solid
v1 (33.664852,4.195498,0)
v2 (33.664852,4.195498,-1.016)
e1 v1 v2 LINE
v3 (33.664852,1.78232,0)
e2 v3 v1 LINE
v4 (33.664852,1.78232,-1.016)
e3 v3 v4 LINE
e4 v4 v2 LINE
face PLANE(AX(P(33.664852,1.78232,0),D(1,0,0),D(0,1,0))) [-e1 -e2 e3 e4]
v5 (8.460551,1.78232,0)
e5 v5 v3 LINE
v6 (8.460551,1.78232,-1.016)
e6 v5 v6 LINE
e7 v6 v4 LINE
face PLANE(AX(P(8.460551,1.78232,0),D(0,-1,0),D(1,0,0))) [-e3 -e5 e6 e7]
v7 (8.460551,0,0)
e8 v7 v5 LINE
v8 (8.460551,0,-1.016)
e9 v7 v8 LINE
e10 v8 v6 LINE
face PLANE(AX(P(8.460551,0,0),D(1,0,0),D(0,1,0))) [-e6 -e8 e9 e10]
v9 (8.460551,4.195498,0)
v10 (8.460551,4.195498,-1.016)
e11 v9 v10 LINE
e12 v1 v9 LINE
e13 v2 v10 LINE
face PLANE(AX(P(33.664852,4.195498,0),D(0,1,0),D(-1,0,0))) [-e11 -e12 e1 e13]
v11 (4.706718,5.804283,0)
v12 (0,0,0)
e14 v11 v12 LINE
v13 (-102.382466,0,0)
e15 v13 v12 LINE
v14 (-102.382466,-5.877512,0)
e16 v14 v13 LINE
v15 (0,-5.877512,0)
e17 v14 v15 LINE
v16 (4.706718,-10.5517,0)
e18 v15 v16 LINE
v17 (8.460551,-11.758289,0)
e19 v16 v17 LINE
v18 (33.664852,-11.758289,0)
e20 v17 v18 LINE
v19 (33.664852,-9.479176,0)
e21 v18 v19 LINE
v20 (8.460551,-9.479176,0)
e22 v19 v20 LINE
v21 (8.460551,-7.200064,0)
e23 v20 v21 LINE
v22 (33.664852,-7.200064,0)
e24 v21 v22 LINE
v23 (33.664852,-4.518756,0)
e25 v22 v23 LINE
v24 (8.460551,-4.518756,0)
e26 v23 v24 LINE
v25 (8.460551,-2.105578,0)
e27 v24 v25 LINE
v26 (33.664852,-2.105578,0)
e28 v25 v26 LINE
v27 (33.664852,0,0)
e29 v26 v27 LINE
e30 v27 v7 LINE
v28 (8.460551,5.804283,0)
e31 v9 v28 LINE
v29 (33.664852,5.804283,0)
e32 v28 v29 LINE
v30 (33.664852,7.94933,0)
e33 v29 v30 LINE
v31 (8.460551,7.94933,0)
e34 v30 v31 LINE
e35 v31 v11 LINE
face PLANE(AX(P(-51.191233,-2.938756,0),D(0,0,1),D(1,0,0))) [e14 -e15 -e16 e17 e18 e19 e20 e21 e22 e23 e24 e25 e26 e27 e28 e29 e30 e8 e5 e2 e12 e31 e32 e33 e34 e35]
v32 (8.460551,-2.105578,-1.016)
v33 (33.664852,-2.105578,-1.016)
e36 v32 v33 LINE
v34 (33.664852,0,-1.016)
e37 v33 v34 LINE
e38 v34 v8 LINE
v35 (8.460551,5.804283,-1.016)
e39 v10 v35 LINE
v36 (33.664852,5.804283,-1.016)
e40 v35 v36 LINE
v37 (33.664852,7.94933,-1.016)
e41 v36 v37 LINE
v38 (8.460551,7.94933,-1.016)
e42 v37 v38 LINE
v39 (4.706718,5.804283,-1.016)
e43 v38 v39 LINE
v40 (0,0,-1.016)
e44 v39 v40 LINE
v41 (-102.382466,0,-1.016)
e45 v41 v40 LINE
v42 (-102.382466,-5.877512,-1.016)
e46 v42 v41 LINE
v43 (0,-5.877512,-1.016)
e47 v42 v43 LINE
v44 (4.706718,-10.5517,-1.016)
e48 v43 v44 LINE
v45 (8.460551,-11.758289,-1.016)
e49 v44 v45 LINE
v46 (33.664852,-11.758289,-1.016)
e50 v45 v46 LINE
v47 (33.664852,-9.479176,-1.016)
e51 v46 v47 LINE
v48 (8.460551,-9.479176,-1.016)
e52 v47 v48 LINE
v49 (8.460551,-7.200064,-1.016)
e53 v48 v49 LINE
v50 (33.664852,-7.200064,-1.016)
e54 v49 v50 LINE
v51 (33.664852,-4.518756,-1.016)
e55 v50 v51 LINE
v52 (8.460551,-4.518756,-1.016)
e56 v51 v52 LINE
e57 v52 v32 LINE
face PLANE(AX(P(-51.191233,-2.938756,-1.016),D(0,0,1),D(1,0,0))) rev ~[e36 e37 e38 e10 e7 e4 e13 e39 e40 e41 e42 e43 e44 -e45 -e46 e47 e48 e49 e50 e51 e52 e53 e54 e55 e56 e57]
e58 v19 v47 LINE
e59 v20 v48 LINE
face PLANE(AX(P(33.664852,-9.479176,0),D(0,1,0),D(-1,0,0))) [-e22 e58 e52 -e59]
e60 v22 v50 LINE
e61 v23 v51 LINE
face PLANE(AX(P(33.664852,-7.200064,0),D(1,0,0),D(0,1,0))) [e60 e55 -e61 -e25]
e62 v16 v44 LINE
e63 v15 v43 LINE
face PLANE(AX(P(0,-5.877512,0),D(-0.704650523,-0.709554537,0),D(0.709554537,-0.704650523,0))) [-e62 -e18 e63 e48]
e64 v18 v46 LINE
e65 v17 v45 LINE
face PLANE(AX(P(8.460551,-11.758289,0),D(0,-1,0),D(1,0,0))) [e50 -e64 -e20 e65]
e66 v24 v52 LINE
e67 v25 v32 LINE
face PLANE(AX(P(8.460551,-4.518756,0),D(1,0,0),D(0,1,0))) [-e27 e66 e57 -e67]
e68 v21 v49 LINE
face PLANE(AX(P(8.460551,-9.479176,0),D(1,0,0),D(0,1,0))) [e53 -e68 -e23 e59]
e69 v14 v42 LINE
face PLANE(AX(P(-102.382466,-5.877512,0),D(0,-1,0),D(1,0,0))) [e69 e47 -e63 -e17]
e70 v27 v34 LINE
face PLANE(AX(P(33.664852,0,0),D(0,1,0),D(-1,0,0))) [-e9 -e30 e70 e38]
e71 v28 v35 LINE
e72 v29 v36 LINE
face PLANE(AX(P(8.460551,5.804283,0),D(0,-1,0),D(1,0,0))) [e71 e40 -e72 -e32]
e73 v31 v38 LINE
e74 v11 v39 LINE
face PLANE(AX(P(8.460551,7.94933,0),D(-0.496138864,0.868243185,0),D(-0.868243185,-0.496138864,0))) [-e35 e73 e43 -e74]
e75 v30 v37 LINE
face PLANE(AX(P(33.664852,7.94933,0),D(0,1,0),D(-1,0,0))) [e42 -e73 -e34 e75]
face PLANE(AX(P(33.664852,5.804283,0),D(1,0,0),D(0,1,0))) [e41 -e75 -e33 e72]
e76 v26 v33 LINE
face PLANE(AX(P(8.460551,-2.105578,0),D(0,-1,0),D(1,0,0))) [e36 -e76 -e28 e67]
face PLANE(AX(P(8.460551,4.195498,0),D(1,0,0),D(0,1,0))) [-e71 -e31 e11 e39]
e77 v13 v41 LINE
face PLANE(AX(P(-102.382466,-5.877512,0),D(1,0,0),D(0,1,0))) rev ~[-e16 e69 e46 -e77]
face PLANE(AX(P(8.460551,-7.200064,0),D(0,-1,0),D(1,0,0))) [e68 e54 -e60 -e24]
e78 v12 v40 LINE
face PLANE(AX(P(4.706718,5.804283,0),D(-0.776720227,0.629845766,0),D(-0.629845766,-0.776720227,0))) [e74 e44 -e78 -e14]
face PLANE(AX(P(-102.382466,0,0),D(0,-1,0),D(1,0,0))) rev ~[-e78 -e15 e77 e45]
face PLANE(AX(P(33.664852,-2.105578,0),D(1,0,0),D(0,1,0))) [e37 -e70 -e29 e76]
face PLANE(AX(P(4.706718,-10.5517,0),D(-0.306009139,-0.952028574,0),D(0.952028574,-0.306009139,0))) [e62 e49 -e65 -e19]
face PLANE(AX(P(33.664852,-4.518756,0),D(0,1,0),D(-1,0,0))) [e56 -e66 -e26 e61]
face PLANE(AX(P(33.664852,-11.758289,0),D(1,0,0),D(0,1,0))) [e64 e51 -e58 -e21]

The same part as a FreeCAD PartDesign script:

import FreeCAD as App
import Part
import Sketcher
from FreeCAD import Vector
Q = App.Units.Quantity

doc = App.newDocument("Part")
body = doc.addObject("PartDesign::Body", "Body")

sketch1 = body.newObject("Sketcher::SketchObject", "Sketch")
sketch1.AttachmentSupport = (doc.getObject("XY_Plane"), [""])
sketch1.MapMode = "FlatFace"
sketch1.addGeometry([
    Part.LineSegment(Vector(-102.4, 0, 0), Vector(-102.4, -5.9, 0)),
    Part.LineSegment(Vector(-102.4, -5.9, 0), Vector(0, -5.9, 0)),
    Part.LineSegment(Vector(0, -5.9, 0), Vector(4.7, -10.6, 0)),
    Part.LineSegment(Vector(4.7, -10.6, 0), Vector(8.5, -11.8, 0)),
    Part.LineSegment(Vector(8.5, -11.8, 0), Vector(33.7, -11.8, 0)),
    Part.LineSegment(Vector(33.7, -11.8, 0), Vector(33.7, -9.5, 0)),
    Part.LineSegment(Vector(33.7, -9.5, 0), Vector(8.5, -9.5, 0)),
    Part.LineSegment(Vector(8.5, -9.5, 0), Vector(8.5, -7.2, 0)),
    Part.LineSegment(Vector(8.5, -7.2, 0), Vector(33.7, -7.2, 0)),
    Part.LineSegment(Vector(33.7, -7.2, 0), Vector(33.7, -4.5, 0)),
    Part.LineSegment(Vector(33.7, -4.5, 0), Vector(8.5, -4.5, 0)),
    Part.LineSegment(Vector(8.5, -4.5, 0), Vector(8.5, -2.1, 0)),
    Part.LineSegment(Vector(8.5, -2.1, 0), Vector(33.7, -2.1, 0)),
    Part.LineSegment(Vector(33.7, -2.1, 0), Vector(33.7, 0, 0)),
    Part.LineSegment(Vector(33.7, 0, 0), Vector(8.5, 0, 0)),
    Part.LineSegment(Vector(8.5, 0, 0), Vector(8.5, 1.8, 0)),
    Part.LineSegment(Vector(8.5, 1.8, 0), Vector(33.7, 1.8, 0)),
    Part.LineSegment(Vector(33.7, 1.8, 0), Vector(33.7, 4.2, 0)),
    Part.LineSegment(Vector(33.7, 4.2, 0), Vector(8.5, 4.2, 0)),
    Part.LineSegment(Vector(8.5, 4.2, 0), Vector(8.5, 5.8, 0)),
    Part.LineSegment(Vector(8.5, 5.8, 0), Vector(33.7, 5.8, 0)),
    Part.LineSegment(Vector(33.7, 5.8, 0), Vector(33.7, 7.9, 0)),
    Part.LineSegment(Vector(33.7, 7.9, 0), Vector(8.5, 7.9, 0)),
    Part.LineSegment(Vector(8.5, 7.9, 0), Vector(4.7, 5.8, 0)),
    Part.LineSegment(Vector(4.7, 5.8, 0), Vector(0, 0, 0)),
    Part.LineSegment(Vector(0, 0, 0), Vector(-102.4, 0, 0)),
], False)
sketch1.addConstraint([
    Sketcher.Constraint("Coincident", 0, 2, 1, 1),
    Sketcher.Constraint("Coincident", 1, 2, 2, 1),
    Sketcher.Constraint("Coincident", 2, 2, 3, 1),
    Sketcher.Constraint("Coincident", 3, 2, 4, 1),
    Sketcher.Constraint("Coincident", 4, 2, 5, 1),
    Sketcher.Constraint("Coincident", 5, 2, 6, 1),
    Sketcher.Constraint("Coincident", 6, 2, 7, 1),
    Sketcher.Constraint("Coincident", 7, 2, 8, 1),
    Sketcher.Constraint("Coincident", 8, 2, 9, 1),
    Sketcher.Constraint("Coincident", 9, 2, 10, 1),
    Sketcher.Constraint("Coincident", 10, 2, 11, 1),
    Sketcher.Constraint("Coincident", 11, 2, 12, 1),
    Sketcher.Constraint("Coincident", 12, 2, 13, 1),
    Sketcher.Constraint("Coincident", 13, 2, 14, 1),
    Sketcher.Constraint("Coincident", 14, 2, 15, 1),
    Sketcher.Constraint("Coincident", 15, 2, 16, 1),
    Sketcher.Constraint("Coincident", 16, 2, 17, 1),
    Sketcher.Constraint("Coincident", 17, 2, 18, 1),
    Sketcher.Constraint("Coincident", 18, 2, 19, 1),
    Sketcher.Constraint("Coincident", 19, 2, 20, 1),
    Sketcher.Constraint("Coincident", 20, 2, 21, 1),
    Sketcher.Constraint("Coincident", 21, 2, 22, 1),
    Sketcher.Constraint("Coincident", 22, 2, 23, 1),
    Sketcher.Constraint("Coincident", 23, 2, 24, 1),
    Sketcher.Constraint("Coincident", 24, 2, 25, 1),
    Sketcher.Constraint("Coincident", 25, 2, 0, 1),
    Sketcher.Constraint("Vertical", 0),
    Sketcher.Constraint("Horizontal", 1),
    Sketcher.Constraint("Horizontal", 4),
    Sketcher.Constraint("Vertical", 5),
    Sketcher.Constraint("Horizontal", 6),
    Sketcher.Constraint("Vertical", 7),
    Sketcher.Constraint("Horizontal", 8),
    Sketcher.Constraint("Vertical", 9),
    Sketcher.Constraint("Horizontal", 10),
    Sketcher.Constraint("Vertical", 11),
    Sketcher.Constraint("Horizontal", 12),
    Sketcher.Constraint("Vertical", 13),
    Sketcher.Constraint("Horizontal", 14),
    Sketcher.Constraint("Vertical", 15),
    Sketcher.Constraint("Horizontal", 16),
    Sketcher.Constraint("Vertical", 17),
    Sketcher.Constraint("Horizontal", 18),
    Sketcher.Constraint("Vertical", 19),
    Sketcher.Constraint("Horizontal", 20),
    Sketcher.Constraint("Vertical", 21),
    Sketcher.Constraint("Horizontal", 22),
    Sketcher.Constraint("Horizontal", 25),
    Sketcher.Constraint("Coincident", 24, 2, -1, 1),
    Sketcher.Constraint("PointOnObject", 1, 2, -2),
    Sketcher.Constraint("PointOnObject", 13, 2, -1),
    Sketcher.Constraint("Horizontal", 20, 2, 23, 2),
    Sketcher.Constraint("Vertical", 3, 2, 6, 2),
    Sketcher.Constraint("Vertical", 5, 2, 8, 2),
    Sketcher.Constraint("Vertical", 7, 2, 10, 2),
    Sketcher.Constraint("Vertical", 9, 2, 12, 2),
    Sketcher.Constraint("Vertical", 11, 2, 14, 2),
    Sketcher.Constraint("Vertical", 13, 2, 16, 2),
    Sketcher.Constraint("Vertical", 15, 2, 18, 2),
    Sketcher.Constraint("Vertical", 17, 2, 20, 2),
    Sketcher.Constraint("Vertical", 19, 2, 22, 2),
    Sketcher.Constraint("Vertical", 2, 2, 23, 2),
    Sketcher.Constraint("Equal", 5, 7),
    Sketcher.Constraint("Equal", 11, 17),
    Sketcher.Constraint("DistanceX", 4, 1, 4, 2, 25.204301),
    Sketcher.Constraint("DistanceY", 9, 1, 9, 2, 2.681308),
    Sketcher.Constraint("DistanceY", 13, 1, 13, 2, 2.105578),
    Sketcher.Constraint("DistanceY", 15, 1, 15, 2, 1.78232),
    Sketcher.Constraint("DistanceY", 2, 2, -1, 1, 10.5517),
    Sketcher.Constraint("DistanceY", 6, 2, 11, 2, 7.373598),
    Sketcher.Constraint("Distance", 23, 4.323481),
    Sketcher.Constraint("Distance", 24, 7.47281),
    Sketcher.Constraint("DistanceX", 1, 1, 1, 2, 102.382466),
    Sketcher.Constraint("DistanceY", 0, 2, 0, 1, 5.877512),
    Sketcher.Constraint("DistanceY", 5, 1, 5, 2, 2.279113),
    Sketcher.Constraint("DistanceY", 19, 1, 19, 2, 1.608785),
    Sketcher.Constraint("DistanceY", 21, 1, 21, 2, 2.145047),
])
pad1 = body.newObject("PartDesign::Pad", "Pad")
pad1.Profile = sketch1
pad1.Length = Q("0.04 in")
pad1.Reversed = True

doc.recompute()
